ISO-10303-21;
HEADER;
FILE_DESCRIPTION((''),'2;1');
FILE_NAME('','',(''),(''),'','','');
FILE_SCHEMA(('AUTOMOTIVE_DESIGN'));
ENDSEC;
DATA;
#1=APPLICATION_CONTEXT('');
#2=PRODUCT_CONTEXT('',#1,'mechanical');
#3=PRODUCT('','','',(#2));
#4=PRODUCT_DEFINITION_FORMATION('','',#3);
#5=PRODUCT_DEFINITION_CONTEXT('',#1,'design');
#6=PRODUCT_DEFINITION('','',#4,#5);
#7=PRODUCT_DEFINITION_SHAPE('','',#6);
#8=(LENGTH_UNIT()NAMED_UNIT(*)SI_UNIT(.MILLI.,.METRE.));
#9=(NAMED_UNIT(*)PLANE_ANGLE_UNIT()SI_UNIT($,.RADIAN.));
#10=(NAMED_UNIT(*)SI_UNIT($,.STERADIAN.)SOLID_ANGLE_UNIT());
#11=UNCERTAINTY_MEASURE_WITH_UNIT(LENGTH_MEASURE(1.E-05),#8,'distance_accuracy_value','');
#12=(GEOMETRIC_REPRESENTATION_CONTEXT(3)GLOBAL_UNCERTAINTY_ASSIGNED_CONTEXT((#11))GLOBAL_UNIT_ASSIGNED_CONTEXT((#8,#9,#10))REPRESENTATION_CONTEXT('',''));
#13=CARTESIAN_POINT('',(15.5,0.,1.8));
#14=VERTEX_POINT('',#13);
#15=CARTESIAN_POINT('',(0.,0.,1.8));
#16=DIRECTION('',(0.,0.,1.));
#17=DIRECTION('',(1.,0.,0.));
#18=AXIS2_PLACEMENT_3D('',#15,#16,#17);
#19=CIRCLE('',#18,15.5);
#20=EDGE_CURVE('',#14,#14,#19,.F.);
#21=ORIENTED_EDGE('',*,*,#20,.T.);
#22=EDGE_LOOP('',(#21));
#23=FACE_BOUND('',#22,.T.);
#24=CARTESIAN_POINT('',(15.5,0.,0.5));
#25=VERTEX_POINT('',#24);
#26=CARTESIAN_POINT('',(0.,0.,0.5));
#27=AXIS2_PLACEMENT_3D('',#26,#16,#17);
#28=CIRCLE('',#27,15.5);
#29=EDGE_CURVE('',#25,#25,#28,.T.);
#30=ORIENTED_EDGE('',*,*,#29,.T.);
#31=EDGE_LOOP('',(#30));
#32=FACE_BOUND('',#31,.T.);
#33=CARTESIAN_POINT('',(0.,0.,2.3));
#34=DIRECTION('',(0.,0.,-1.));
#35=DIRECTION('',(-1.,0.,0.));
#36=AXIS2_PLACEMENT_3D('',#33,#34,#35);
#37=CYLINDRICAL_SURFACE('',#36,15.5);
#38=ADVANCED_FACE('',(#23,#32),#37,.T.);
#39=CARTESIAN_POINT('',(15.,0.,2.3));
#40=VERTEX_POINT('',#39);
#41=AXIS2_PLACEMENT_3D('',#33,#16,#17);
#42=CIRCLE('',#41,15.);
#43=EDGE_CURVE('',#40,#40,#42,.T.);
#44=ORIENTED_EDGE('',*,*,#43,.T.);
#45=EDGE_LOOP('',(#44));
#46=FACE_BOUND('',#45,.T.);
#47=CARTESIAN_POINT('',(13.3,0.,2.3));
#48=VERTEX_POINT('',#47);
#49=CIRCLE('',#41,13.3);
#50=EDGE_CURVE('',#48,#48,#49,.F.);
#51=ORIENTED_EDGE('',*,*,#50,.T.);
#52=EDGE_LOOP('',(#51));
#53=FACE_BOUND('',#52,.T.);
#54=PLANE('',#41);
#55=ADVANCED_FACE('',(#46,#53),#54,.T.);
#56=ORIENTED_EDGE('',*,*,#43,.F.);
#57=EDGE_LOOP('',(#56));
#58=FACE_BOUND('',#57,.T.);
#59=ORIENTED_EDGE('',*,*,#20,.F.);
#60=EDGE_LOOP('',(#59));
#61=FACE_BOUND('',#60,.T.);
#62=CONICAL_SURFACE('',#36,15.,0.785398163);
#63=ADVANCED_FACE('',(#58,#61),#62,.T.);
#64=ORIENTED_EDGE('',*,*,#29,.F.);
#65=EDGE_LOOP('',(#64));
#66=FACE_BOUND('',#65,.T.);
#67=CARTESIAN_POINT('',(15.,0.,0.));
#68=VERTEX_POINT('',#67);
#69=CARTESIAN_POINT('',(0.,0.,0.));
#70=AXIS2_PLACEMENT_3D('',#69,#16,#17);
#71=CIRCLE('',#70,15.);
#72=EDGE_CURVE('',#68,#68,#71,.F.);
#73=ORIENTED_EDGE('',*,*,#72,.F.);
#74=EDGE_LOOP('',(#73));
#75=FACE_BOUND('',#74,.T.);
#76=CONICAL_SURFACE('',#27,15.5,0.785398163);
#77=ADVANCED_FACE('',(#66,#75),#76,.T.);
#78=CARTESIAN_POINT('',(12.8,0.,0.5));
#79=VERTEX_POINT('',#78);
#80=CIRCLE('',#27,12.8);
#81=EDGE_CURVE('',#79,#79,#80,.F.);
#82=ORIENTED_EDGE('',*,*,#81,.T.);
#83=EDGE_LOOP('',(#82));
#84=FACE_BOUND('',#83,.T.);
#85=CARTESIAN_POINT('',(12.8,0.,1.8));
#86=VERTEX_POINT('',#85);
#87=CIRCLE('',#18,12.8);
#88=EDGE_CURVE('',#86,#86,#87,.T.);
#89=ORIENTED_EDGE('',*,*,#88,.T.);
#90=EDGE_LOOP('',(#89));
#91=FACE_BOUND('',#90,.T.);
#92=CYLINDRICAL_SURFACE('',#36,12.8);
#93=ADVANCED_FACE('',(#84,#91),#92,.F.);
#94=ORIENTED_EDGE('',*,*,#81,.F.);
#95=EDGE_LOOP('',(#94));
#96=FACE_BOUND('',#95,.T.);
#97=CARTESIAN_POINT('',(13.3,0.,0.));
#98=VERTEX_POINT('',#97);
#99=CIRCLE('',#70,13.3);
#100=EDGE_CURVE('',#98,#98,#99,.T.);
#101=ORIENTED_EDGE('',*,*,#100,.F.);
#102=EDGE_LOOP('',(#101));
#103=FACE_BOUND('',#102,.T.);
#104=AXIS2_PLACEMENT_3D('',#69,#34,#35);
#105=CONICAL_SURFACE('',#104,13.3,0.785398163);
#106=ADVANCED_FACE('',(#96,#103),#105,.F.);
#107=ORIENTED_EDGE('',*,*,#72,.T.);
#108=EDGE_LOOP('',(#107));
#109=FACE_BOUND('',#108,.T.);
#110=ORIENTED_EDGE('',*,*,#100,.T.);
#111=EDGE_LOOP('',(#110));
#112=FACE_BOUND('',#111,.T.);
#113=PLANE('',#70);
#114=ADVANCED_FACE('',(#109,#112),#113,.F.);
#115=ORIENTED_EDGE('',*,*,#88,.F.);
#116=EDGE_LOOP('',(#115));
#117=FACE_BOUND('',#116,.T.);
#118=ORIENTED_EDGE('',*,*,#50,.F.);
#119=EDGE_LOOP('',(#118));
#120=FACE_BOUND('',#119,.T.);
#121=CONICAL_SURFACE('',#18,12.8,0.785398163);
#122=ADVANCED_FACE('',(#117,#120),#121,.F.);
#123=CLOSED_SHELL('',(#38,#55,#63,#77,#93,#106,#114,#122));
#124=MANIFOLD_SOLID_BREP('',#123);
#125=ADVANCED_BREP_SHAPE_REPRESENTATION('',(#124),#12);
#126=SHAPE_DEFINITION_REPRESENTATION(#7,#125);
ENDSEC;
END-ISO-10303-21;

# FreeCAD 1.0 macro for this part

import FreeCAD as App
import Part
import Sketcher
from FreeCAD import Vector
Q = App.Units.Quantity


def edges_at(feature, points):
    """Names of the edges that pass closest to the given points."""
    edges = feature.Shape.Edges
    near = lambda p: min(range(len(edges)), key=lambda i: edges[i].distToShape(Part.Vertex(*p))[0])
    return sorted({f"Edge{near(p) + 1}" for p in points})

doc = App.newDocument("Part")
body = doc.addObject("PartDesign::Body", "Body")

sketch1 = body.newObject("Sketcher::SketchObject", "Sketch")
sketch1.AttachmentSupport = (doc.getObject("XY_Plane"), [""])
sketch1.MapMode = "FlatFace"
sketch1.addGeometry([
    Part.Circle(Vector(0, 0, 0), Vector(0, 0, 1), 16),
    Part.Circle(Vector(0, 0, 0), Vector(0, 0, 1), 13),
], False)
sketch1.addConstraint([
    Sketcher.Constraint("Coincident", 0, 3, -1, 1),
    Sketcher.Constraint("Coincident", 1, 3, -1, 1),
    Sketcher.Constraint("Diameter", 0, Q("31 mm")),
    Sketcher.Constraint("Diameter", 1, Q("25.6 mm")),
])
pad1 = body.newObject("PartDesign::Pad", "Pad")
pad1.Profile = sketch1
pad1.Length = 2.3
doc.recompute()

chamfer = body.newObject("PartDesign::Chamfer", "Chamfer")
chamfer.Base = (pad1, edges_at(pad1, [
    (-15.5, 0, 0),
    (-15.5, 0, 2.3),
    (-12.8, 0, 0),
    (-12.8, 0, 2.3),
]))
chamfer.Size = 0.5

doc.recompute()
